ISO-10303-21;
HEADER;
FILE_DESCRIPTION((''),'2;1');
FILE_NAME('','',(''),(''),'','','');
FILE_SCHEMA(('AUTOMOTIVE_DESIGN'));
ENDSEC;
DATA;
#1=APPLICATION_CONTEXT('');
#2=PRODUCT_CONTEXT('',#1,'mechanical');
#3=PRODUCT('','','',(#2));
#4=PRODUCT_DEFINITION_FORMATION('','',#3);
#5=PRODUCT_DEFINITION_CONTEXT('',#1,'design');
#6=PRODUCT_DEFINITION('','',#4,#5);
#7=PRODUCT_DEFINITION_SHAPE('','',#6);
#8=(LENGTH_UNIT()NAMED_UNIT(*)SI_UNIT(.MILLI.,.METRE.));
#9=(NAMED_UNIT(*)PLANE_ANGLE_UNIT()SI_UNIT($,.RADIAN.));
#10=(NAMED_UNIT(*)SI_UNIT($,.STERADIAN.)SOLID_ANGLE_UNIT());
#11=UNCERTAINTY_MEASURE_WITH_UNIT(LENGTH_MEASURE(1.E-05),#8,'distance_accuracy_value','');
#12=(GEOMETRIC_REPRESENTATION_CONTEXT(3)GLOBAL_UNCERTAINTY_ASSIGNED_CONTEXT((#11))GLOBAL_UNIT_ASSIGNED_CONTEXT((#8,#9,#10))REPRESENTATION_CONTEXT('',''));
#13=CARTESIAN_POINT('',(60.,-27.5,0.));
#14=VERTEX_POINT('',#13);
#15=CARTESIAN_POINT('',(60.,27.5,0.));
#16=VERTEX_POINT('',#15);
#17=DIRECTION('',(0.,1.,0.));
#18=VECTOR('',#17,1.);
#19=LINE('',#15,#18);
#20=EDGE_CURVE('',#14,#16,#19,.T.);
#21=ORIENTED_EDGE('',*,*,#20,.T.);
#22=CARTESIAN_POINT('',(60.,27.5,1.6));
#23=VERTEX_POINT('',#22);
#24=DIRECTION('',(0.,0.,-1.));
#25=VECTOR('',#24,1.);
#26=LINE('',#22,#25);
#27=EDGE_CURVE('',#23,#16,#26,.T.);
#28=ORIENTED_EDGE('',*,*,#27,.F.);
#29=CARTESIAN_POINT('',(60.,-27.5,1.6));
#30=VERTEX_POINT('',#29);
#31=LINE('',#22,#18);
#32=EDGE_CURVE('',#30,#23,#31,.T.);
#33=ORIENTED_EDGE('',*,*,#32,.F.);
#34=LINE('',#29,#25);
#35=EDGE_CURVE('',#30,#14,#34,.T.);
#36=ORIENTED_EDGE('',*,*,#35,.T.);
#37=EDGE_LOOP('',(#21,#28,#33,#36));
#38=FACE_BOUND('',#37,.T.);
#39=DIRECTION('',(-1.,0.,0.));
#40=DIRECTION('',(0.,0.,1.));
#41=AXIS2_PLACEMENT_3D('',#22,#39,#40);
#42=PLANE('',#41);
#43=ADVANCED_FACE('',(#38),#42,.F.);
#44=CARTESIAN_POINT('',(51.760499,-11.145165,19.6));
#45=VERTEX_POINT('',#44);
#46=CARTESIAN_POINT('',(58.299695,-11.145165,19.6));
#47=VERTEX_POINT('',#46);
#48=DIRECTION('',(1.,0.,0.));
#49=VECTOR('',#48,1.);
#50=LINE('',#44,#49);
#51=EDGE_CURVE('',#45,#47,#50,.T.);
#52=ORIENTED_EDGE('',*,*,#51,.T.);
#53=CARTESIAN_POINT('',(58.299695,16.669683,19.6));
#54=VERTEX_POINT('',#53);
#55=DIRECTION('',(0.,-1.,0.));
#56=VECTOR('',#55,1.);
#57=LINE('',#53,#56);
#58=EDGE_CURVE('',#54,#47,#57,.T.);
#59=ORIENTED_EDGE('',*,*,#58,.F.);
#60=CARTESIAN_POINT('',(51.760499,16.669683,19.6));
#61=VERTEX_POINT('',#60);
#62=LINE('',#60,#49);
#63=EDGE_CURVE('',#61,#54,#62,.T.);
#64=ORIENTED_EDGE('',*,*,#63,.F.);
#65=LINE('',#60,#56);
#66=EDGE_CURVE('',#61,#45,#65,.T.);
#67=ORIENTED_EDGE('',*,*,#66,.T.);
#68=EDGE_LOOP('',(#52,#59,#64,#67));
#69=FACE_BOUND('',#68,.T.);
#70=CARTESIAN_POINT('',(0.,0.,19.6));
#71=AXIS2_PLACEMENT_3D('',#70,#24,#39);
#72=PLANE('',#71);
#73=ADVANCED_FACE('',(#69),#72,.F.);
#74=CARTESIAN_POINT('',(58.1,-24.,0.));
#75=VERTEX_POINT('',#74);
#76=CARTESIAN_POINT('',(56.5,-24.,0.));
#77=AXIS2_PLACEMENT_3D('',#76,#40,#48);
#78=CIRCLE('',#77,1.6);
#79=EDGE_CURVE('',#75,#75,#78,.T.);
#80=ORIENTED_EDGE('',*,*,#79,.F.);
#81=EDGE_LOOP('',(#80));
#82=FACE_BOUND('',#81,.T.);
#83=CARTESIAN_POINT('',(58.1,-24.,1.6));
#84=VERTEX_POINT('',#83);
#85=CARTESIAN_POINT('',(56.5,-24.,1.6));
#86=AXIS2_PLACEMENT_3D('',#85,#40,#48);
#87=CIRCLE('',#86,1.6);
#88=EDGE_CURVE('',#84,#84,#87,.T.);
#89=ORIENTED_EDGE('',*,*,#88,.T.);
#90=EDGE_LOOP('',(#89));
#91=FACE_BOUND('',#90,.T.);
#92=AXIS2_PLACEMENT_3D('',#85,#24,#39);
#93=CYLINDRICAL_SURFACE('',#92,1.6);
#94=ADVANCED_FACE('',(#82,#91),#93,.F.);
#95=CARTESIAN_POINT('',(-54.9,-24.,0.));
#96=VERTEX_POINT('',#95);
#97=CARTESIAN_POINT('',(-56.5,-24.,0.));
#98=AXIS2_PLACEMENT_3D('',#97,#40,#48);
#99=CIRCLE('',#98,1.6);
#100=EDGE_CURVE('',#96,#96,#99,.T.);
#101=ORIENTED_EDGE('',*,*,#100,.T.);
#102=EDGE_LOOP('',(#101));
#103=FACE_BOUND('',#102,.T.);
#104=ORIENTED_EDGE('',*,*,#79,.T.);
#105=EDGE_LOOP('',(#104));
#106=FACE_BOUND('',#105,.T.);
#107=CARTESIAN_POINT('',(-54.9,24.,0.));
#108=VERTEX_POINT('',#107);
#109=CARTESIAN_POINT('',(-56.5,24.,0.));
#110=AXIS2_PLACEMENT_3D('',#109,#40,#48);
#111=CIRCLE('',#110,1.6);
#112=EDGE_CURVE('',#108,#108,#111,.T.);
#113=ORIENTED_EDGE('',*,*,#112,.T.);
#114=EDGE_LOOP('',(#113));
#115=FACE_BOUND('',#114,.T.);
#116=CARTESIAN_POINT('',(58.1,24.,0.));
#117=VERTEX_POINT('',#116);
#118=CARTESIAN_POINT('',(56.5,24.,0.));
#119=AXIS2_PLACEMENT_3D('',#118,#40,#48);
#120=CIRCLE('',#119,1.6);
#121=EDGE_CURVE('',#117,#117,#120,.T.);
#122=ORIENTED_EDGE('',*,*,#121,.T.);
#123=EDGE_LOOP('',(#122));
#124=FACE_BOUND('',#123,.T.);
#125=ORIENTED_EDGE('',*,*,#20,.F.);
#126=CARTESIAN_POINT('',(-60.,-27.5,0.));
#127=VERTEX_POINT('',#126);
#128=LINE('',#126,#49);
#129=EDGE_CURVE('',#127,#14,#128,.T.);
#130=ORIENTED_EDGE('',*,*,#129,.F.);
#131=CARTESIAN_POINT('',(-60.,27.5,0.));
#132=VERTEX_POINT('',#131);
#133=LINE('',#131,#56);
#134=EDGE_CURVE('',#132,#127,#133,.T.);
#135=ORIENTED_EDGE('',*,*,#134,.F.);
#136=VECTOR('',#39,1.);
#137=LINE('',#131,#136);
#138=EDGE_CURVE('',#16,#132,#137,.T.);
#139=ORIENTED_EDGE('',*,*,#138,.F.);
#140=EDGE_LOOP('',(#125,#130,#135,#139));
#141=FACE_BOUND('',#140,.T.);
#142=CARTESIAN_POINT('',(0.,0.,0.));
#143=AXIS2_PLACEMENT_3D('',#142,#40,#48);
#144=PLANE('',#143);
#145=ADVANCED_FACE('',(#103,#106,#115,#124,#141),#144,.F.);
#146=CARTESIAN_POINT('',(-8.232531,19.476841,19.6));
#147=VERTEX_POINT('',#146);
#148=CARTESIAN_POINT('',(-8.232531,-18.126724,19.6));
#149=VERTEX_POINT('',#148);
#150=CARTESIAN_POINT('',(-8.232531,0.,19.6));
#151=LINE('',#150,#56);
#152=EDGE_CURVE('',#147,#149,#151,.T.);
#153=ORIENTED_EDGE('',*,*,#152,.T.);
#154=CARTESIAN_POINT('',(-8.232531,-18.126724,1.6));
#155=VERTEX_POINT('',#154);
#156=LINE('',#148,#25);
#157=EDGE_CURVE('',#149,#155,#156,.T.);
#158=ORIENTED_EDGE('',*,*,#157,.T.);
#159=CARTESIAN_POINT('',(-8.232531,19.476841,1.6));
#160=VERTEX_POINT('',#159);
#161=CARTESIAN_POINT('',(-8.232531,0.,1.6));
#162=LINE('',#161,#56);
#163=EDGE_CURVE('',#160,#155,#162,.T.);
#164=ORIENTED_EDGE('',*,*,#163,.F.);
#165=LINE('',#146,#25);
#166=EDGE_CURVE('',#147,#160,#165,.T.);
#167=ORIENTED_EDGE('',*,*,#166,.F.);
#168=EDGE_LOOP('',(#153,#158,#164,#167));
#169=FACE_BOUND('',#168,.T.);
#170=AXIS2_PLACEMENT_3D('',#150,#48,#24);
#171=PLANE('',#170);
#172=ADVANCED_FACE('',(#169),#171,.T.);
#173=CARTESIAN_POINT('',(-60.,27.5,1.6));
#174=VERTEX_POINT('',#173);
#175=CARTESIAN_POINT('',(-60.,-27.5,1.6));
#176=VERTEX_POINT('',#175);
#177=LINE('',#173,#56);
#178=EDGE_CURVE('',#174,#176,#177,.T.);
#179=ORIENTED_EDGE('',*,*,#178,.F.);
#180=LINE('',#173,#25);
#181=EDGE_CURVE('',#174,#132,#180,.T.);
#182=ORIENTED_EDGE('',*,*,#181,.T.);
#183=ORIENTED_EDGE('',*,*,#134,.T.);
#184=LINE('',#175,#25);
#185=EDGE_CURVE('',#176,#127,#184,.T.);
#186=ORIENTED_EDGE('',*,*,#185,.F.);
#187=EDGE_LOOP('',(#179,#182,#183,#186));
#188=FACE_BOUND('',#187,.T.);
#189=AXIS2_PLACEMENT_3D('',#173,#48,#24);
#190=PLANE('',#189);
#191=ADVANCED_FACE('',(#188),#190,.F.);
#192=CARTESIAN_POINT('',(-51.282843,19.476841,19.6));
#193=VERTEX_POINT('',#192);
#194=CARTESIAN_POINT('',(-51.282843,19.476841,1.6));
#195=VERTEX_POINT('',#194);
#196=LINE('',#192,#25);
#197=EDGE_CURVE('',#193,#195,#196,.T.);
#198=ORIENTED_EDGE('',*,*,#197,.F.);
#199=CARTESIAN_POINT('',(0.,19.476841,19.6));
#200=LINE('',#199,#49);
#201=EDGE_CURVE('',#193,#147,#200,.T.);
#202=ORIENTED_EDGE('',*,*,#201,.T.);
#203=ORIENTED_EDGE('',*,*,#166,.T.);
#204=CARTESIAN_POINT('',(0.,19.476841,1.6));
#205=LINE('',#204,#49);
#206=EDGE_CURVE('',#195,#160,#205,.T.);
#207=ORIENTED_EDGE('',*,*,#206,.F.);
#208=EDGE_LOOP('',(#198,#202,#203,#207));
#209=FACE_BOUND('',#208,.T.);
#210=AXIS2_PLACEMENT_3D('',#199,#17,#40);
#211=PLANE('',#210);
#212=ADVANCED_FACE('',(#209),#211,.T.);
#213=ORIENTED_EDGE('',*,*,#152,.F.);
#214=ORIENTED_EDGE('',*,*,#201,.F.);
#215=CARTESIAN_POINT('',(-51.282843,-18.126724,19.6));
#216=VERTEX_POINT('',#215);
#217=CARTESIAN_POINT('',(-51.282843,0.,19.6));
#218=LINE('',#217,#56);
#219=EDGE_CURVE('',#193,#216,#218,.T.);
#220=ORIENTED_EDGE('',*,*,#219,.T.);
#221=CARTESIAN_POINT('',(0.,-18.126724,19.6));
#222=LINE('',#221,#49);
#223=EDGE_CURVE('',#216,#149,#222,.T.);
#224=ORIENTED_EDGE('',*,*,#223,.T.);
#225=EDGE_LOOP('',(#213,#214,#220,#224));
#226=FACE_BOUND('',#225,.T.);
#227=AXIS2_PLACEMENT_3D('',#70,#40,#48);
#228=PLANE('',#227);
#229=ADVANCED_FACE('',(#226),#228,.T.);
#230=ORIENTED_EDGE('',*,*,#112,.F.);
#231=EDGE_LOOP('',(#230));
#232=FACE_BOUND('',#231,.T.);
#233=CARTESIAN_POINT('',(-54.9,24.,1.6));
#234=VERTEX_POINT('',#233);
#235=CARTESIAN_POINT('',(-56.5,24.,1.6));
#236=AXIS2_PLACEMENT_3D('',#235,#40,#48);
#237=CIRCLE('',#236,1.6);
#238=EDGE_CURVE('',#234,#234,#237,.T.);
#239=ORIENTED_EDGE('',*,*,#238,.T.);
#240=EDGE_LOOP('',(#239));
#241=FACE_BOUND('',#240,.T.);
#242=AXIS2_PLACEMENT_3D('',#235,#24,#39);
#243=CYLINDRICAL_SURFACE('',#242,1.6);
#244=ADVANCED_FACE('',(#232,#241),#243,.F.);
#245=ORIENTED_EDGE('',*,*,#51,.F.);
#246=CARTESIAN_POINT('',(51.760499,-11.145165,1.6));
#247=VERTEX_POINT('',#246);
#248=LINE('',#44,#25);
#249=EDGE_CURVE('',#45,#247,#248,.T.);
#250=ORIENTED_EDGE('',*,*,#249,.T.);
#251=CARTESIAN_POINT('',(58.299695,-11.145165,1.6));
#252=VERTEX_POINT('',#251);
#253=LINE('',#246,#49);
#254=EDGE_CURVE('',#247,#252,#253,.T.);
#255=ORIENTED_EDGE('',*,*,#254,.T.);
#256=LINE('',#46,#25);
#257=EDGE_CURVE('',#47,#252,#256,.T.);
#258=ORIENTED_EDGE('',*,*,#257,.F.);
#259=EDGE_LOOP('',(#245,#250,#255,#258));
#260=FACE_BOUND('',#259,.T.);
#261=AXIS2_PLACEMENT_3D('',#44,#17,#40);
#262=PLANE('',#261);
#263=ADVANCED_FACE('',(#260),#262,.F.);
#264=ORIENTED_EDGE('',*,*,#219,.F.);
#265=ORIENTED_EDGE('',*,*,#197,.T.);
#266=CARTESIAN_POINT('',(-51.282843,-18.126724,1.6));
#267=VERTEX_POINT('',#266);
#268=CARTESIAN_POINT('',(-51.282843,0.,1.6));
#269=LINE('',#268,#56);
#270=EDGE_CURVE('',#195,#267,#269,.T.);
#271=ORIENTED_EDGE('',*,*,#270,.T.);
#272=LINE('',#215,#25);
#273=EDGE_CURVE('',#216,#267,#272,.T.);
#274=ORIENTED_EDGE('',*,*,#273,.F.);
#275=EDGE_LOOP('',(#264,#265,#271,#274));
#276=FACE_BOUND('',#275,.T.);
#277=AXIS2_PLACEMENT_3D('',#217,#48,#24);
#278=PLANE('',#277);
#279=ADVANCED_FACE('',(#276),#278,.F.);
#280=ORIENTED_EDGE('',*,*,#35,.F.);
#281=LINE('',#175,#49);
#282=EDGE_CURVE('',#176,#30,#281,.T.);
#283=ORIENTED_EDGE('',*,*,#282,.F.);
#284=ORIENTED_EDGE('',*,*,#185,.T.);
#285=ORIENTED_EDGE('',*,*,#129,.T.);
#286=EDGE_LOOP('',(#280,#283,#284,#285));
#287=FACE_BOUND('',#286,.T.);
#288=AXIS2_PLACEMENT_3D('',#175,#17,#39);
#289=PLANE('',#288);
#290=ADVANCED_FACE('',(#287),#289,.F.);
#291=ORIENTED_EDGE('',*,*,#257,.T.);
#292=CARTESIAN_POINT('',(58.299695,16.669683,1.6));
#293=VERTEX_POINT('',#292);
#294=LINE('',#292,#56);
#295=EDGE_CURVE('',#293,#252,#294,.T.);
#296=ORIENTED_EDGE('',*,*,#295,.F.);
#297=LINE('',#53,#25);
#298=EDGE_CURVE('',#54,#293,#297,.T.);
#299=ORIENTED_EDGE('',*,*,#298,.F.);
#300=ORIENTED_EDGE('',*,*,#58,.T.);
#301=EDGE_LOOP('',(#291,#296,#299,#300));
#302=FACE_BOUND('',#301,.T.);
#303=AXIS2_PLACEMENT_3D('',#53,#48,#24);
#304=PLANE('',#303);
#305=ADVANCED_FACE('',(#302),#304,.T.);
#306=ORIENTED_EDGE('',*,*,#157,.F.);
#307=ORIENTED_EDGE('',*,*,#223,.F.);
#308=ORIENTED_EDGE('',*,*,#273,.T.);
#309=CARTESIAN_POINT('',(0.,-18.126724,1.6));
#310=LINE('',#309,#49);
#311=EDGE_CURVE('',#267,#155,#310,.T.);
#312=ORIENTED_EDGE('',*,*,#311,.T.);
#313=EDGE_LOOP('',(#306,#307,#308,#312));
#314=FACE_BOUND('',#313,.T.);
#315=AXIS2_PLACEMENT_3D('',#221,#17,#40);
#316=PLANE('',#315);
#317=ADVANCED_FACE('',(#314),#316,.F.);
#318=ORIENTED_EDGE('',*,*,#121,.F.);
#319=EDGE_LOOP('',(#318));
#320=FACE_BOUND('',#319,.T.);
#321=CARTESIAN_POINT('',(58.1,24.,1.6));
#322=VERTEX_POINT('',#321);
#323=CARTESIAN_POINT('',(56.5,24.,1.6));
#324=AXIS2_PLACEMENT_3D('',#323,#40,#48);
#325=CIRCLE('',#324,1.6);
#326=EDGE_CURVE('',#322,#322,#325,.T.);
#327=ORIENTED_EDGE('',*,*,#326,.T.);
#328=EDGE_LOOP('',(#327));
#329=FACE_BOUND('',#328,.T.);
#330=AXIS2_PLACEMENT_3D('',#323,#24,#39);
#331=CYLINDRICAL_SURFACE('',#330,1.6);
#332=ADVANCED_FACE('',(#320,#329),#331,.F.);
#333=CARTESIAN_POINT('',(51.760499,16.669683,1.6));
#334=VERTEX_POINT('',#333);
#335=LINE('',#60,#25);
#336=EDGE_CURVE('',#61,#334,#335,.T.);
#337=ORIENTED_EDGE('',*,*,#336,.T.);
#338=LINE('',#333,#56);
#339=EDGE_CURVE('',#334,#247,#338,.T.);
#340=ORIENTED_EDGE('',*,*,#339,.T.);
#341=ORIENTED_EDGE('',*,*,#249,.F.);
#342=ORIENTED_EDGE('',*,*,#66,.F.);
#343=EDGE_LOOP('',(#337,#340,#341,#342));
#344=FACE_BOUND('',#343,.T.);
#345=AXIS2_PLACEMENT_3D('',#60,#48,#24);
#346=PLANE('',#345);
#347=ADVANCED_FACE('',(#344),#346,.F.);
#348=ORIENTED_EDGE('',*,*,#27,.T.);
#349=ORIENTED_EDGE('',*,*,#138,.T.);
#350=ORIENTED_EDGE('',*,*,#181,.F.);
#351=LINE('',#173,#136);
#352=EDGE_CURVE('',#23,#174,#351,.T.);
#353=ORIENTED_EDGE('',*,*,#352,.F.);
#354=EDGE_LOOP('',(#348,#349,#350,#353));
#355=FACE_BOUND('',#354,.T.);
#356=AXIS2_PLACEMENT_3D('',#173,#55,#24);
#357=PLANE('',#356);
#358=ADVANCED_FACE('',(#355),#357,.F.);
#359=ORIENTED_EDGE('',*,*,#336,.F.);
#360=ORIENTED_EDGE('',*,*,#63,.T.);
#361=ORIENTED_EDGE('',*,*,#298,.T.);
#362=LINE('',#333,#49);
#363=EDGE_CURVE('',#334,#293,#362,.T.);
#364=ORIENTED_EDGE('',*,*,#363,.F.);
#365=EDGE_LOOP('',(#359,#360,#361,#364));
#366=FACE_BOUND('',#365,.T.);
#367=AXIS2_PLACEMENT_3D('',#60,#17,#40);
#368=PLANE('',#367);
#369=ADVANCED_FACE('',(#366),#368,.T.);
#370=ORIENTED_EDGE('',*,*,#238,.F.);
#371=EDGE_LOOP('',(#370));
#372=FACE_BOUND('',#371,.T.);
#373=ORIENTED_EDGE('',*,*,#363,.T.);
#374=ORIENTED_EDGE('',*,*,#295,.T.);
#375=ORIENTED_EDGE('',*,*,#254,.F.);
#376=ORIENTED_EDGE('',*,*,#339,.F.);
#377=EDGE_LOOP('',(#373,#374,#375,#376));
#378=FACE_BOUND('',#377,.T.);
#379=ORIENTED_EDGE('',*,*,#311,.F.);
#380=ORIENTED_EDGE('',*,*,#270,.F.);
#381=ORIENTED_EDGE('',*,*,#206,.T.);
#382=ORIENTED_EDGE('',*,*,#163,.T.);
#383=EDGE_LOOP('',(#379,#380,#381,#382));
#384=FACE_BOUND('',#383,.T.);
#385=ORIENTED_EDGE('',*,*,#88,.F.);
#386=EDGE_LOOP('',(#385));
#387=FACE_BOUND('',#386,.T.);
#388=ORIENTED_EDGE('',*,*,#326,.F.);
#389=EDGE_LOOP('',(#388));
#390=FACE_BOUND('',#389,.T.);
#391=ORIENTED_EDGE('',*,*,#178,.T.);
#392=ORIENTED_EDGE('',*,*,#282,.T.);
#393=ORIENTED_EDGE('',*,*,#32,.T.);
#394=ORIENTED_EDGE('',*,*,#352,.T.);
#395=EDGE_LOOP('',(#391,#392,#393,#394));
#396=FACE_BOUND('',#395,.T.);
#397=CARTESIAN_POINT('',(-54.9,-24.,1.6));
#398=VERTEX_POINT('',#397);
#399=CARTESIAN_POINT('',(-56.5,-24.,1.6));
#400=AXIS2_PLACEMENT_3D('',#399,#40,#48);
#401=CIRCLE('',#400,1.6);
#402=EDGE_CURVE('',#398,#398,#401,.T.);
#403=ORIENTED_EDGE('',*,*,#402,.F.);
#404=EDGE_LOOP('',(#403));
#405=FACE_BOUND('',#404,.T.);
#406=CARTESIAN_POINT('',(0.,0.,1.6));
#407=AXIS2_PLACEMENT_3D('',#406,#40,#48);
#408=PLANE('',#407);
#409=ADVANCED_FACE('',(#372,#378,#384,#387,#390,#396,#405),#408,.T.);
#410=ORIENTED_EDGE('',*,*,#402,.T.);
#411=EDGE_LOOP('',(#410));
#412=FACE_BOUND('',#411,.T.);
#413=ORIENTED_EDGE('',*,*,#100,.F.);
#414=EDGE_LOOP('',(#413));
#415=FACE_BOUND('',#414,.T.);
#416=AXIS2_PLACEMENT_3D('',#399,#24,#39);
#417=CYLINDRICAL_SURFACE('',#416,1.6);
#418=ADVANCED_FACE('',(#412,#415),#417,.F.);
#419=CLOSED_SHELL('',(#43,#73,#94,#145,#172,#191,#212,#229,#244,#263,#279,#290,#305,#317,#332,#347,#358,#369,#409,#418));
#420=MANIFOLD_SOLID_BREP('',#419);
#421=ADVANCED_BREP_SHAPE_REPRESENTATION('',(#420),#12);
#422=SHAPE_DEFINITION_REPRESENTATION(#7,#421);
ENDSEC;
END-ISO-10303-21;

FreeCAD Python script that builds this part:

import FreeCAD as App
import Part
import Sketcher


def add_polygon(sketch, points):
    """Adds a closed chain of lines whose ends are joined by coincident constraints."""
    first, n = sketch.GeometryCount, len(points)
    for a, b in zip(points, points[1:] + points[:1]):
        sketch.addGeometry(Part.LineSegment(App.Vector(*a, 0), App.Vector(*b, 0)), False)
    for i in range(n):
        sketch.addConstraint(Sketcher.Constraint("Coincident", first + i, 2, first + (i + 1) % n, 1))

doc = App.newDocument("Part")
body = doc.addObject("PartDesign::Body", "Body")

sketch1 = body.newObject("Sketcher::SketchObject", "Sketch")
sketch1.AttachmentSupport = (doc.getObject("XY_Plane"), [""])
sketch1.MapMode = "FlatFace"
add_polygon(sketch1, [(-60, 27.5), (-60, -27.5), (60, -27.5), (60, 27.5)])
sketch1.addGeometry(Part.Circle(App.Vector(-56.5, -24, 0), App.Vector(0, 0, 1), 1.6), False)
sketch1.addGeometry(Part.Circle(App.Vector(56.5, -24, 0), App.Vector(0, 0, 1), 1.6), False)
sketch1.addGeometry(Part.Circle(App.Vector(-56.5, 24, 0), App.Vector(0, 0, 1), 1.6), False)
sketch1.addGeometry(Part.Circle(App.Vector(56.5, 24, 0), App.Vector(0, 0, 1), 1.6), False)
sketch1.addConstraint(Sketcher.Constraint("Vertical", 0))
sketch1.addConstraint(Sketcher.Constraint("Horizontal", 1))
sketch1.addConstraint(Sketcher.Constraint("Vertical", 2))
sketch1.addConstraint(Sketcher.Constraint("Horizontal", 3))
sketch1.addConstraint(Sketcher.Constraint("Equal", 4, 5))
sketch1.addConstraint(Sketcher.Constraint("Equal", 5, 6))
sketch1.addConstraint(Sketcher.Constraint("Equal", 6, 7))
sketch1.addConstraint(Sketcher.Constraint("Symmetric", 5, 3, 6, 3, -1, 1))
sketch1.addConstraint(Sketcher.Constraint("Symmetric", 4, 3, 7, 3, -1, 1))
sketch1.addConstraint(Sketcher.Constraint("Symmetric", 0, 2, 2, 2, -1, 1))
sketch1.addConstraint(Sketcher.Constraint("Symmetric", 4, 3, 5, 3, -2))
sketch1.addConstraint(Sketcher.Constraint("Diameter", 4, 3.2))
sketch1.addConstraint(Sketcher.Constraint("DistanceX", 1, 1, 1, 2, 120.0))
sketch1.addConstraint(Sketcher.Constraint("DistanceY", 0, 2, 0, 1, 55.0))
sketch1.addConstraint(Sketcher.Constraint("DistanceY", 4, 3, -1, 1, 24.0))
sketch1.addConstraint(Sketcher.Constraint("DistanceX", 4, 3, 5, 3, 113.0))
pad1 = body.newObject("PartDesign::Pad", "Pad")
pad1.Profile = sketch1
pad1.Length = 1.6

sketch2 = body.newObject("Sketcher::SketchObject", "Sketch001")
sketch2.AttachmentSupport = (doc.getObject("XY_Plane"), [""])
sketch2.MapMode = "FlatFace"
sketch2.AttachmentOffset = App.Placement(App.Vector(0, 0, 1.6), App.Rotation())
add_polygon(sketch2, [(-51, 19), (-51, -18), (-8, -18), (-8, 19)])
add_polygon(sketch2, [(52, 17), (52, -11), (58, -11), (58, 17)])
sketch2.addConstraint(Sketcher.Constraint("Vertical", 0))
sketch2.addConstraint(Sketcher.Constraint("Horizontal", 1))
sketch2.addConstraint(Sketcher.Constraint("Vertical", 2))
sketch2.addConstraint(Sketcher.Constraint("Horizontal", 3))
sketch2.addConstraint(Sketcher.Constraint("Vertical", 4))
sketch2.addConstraint(Sketcher.Constraint("Horizontal", 5))
sketch2.addConstraint(Sketcher.Constraint("Vertical", 6))
sketch2.addConstraint(Sketcher.Constraint("Horizontal", 7))
sketch2.addConstraint(Sketcher.Constraint("DistanceX", -1, 1, 4, 2, 51.760499))
sketch2.addConstraint(Sketcher.Constraint("DistanceX", 1, 1, 1, 2, 43.050312))
sketch2.addConstraint(Sketcher.Constraint("DistanceX", 5, 1, 5, 2, 6.539195))
sketch2.addConstraint(Sketcher.Constraint("DistanceY", 0, 2, 0, 1, 37.603565))
sketch2.addConstraint(Sketcher.Constraint("DistanceY", 4, 2, 4, 1, 27.814848))
sketch2.addConstraint(Sketcher.Constraint("DistanceX", 1, 2, -1, 1, 8.232531))
sketch2.addConstraint(Sketcher.Constraint("DistanceY", -1, 1, 2, 2, 19.476841))
sketch2.addConstraint(Sketcher.Constraint("DistanceY", 1, 2, 4, 2, 6.981559))
pad2 = body.newObject("PartDesign::Pad", "Pad001")
pad2.Profile = sketch2
pad2.Length = 18

doc.recompute()
